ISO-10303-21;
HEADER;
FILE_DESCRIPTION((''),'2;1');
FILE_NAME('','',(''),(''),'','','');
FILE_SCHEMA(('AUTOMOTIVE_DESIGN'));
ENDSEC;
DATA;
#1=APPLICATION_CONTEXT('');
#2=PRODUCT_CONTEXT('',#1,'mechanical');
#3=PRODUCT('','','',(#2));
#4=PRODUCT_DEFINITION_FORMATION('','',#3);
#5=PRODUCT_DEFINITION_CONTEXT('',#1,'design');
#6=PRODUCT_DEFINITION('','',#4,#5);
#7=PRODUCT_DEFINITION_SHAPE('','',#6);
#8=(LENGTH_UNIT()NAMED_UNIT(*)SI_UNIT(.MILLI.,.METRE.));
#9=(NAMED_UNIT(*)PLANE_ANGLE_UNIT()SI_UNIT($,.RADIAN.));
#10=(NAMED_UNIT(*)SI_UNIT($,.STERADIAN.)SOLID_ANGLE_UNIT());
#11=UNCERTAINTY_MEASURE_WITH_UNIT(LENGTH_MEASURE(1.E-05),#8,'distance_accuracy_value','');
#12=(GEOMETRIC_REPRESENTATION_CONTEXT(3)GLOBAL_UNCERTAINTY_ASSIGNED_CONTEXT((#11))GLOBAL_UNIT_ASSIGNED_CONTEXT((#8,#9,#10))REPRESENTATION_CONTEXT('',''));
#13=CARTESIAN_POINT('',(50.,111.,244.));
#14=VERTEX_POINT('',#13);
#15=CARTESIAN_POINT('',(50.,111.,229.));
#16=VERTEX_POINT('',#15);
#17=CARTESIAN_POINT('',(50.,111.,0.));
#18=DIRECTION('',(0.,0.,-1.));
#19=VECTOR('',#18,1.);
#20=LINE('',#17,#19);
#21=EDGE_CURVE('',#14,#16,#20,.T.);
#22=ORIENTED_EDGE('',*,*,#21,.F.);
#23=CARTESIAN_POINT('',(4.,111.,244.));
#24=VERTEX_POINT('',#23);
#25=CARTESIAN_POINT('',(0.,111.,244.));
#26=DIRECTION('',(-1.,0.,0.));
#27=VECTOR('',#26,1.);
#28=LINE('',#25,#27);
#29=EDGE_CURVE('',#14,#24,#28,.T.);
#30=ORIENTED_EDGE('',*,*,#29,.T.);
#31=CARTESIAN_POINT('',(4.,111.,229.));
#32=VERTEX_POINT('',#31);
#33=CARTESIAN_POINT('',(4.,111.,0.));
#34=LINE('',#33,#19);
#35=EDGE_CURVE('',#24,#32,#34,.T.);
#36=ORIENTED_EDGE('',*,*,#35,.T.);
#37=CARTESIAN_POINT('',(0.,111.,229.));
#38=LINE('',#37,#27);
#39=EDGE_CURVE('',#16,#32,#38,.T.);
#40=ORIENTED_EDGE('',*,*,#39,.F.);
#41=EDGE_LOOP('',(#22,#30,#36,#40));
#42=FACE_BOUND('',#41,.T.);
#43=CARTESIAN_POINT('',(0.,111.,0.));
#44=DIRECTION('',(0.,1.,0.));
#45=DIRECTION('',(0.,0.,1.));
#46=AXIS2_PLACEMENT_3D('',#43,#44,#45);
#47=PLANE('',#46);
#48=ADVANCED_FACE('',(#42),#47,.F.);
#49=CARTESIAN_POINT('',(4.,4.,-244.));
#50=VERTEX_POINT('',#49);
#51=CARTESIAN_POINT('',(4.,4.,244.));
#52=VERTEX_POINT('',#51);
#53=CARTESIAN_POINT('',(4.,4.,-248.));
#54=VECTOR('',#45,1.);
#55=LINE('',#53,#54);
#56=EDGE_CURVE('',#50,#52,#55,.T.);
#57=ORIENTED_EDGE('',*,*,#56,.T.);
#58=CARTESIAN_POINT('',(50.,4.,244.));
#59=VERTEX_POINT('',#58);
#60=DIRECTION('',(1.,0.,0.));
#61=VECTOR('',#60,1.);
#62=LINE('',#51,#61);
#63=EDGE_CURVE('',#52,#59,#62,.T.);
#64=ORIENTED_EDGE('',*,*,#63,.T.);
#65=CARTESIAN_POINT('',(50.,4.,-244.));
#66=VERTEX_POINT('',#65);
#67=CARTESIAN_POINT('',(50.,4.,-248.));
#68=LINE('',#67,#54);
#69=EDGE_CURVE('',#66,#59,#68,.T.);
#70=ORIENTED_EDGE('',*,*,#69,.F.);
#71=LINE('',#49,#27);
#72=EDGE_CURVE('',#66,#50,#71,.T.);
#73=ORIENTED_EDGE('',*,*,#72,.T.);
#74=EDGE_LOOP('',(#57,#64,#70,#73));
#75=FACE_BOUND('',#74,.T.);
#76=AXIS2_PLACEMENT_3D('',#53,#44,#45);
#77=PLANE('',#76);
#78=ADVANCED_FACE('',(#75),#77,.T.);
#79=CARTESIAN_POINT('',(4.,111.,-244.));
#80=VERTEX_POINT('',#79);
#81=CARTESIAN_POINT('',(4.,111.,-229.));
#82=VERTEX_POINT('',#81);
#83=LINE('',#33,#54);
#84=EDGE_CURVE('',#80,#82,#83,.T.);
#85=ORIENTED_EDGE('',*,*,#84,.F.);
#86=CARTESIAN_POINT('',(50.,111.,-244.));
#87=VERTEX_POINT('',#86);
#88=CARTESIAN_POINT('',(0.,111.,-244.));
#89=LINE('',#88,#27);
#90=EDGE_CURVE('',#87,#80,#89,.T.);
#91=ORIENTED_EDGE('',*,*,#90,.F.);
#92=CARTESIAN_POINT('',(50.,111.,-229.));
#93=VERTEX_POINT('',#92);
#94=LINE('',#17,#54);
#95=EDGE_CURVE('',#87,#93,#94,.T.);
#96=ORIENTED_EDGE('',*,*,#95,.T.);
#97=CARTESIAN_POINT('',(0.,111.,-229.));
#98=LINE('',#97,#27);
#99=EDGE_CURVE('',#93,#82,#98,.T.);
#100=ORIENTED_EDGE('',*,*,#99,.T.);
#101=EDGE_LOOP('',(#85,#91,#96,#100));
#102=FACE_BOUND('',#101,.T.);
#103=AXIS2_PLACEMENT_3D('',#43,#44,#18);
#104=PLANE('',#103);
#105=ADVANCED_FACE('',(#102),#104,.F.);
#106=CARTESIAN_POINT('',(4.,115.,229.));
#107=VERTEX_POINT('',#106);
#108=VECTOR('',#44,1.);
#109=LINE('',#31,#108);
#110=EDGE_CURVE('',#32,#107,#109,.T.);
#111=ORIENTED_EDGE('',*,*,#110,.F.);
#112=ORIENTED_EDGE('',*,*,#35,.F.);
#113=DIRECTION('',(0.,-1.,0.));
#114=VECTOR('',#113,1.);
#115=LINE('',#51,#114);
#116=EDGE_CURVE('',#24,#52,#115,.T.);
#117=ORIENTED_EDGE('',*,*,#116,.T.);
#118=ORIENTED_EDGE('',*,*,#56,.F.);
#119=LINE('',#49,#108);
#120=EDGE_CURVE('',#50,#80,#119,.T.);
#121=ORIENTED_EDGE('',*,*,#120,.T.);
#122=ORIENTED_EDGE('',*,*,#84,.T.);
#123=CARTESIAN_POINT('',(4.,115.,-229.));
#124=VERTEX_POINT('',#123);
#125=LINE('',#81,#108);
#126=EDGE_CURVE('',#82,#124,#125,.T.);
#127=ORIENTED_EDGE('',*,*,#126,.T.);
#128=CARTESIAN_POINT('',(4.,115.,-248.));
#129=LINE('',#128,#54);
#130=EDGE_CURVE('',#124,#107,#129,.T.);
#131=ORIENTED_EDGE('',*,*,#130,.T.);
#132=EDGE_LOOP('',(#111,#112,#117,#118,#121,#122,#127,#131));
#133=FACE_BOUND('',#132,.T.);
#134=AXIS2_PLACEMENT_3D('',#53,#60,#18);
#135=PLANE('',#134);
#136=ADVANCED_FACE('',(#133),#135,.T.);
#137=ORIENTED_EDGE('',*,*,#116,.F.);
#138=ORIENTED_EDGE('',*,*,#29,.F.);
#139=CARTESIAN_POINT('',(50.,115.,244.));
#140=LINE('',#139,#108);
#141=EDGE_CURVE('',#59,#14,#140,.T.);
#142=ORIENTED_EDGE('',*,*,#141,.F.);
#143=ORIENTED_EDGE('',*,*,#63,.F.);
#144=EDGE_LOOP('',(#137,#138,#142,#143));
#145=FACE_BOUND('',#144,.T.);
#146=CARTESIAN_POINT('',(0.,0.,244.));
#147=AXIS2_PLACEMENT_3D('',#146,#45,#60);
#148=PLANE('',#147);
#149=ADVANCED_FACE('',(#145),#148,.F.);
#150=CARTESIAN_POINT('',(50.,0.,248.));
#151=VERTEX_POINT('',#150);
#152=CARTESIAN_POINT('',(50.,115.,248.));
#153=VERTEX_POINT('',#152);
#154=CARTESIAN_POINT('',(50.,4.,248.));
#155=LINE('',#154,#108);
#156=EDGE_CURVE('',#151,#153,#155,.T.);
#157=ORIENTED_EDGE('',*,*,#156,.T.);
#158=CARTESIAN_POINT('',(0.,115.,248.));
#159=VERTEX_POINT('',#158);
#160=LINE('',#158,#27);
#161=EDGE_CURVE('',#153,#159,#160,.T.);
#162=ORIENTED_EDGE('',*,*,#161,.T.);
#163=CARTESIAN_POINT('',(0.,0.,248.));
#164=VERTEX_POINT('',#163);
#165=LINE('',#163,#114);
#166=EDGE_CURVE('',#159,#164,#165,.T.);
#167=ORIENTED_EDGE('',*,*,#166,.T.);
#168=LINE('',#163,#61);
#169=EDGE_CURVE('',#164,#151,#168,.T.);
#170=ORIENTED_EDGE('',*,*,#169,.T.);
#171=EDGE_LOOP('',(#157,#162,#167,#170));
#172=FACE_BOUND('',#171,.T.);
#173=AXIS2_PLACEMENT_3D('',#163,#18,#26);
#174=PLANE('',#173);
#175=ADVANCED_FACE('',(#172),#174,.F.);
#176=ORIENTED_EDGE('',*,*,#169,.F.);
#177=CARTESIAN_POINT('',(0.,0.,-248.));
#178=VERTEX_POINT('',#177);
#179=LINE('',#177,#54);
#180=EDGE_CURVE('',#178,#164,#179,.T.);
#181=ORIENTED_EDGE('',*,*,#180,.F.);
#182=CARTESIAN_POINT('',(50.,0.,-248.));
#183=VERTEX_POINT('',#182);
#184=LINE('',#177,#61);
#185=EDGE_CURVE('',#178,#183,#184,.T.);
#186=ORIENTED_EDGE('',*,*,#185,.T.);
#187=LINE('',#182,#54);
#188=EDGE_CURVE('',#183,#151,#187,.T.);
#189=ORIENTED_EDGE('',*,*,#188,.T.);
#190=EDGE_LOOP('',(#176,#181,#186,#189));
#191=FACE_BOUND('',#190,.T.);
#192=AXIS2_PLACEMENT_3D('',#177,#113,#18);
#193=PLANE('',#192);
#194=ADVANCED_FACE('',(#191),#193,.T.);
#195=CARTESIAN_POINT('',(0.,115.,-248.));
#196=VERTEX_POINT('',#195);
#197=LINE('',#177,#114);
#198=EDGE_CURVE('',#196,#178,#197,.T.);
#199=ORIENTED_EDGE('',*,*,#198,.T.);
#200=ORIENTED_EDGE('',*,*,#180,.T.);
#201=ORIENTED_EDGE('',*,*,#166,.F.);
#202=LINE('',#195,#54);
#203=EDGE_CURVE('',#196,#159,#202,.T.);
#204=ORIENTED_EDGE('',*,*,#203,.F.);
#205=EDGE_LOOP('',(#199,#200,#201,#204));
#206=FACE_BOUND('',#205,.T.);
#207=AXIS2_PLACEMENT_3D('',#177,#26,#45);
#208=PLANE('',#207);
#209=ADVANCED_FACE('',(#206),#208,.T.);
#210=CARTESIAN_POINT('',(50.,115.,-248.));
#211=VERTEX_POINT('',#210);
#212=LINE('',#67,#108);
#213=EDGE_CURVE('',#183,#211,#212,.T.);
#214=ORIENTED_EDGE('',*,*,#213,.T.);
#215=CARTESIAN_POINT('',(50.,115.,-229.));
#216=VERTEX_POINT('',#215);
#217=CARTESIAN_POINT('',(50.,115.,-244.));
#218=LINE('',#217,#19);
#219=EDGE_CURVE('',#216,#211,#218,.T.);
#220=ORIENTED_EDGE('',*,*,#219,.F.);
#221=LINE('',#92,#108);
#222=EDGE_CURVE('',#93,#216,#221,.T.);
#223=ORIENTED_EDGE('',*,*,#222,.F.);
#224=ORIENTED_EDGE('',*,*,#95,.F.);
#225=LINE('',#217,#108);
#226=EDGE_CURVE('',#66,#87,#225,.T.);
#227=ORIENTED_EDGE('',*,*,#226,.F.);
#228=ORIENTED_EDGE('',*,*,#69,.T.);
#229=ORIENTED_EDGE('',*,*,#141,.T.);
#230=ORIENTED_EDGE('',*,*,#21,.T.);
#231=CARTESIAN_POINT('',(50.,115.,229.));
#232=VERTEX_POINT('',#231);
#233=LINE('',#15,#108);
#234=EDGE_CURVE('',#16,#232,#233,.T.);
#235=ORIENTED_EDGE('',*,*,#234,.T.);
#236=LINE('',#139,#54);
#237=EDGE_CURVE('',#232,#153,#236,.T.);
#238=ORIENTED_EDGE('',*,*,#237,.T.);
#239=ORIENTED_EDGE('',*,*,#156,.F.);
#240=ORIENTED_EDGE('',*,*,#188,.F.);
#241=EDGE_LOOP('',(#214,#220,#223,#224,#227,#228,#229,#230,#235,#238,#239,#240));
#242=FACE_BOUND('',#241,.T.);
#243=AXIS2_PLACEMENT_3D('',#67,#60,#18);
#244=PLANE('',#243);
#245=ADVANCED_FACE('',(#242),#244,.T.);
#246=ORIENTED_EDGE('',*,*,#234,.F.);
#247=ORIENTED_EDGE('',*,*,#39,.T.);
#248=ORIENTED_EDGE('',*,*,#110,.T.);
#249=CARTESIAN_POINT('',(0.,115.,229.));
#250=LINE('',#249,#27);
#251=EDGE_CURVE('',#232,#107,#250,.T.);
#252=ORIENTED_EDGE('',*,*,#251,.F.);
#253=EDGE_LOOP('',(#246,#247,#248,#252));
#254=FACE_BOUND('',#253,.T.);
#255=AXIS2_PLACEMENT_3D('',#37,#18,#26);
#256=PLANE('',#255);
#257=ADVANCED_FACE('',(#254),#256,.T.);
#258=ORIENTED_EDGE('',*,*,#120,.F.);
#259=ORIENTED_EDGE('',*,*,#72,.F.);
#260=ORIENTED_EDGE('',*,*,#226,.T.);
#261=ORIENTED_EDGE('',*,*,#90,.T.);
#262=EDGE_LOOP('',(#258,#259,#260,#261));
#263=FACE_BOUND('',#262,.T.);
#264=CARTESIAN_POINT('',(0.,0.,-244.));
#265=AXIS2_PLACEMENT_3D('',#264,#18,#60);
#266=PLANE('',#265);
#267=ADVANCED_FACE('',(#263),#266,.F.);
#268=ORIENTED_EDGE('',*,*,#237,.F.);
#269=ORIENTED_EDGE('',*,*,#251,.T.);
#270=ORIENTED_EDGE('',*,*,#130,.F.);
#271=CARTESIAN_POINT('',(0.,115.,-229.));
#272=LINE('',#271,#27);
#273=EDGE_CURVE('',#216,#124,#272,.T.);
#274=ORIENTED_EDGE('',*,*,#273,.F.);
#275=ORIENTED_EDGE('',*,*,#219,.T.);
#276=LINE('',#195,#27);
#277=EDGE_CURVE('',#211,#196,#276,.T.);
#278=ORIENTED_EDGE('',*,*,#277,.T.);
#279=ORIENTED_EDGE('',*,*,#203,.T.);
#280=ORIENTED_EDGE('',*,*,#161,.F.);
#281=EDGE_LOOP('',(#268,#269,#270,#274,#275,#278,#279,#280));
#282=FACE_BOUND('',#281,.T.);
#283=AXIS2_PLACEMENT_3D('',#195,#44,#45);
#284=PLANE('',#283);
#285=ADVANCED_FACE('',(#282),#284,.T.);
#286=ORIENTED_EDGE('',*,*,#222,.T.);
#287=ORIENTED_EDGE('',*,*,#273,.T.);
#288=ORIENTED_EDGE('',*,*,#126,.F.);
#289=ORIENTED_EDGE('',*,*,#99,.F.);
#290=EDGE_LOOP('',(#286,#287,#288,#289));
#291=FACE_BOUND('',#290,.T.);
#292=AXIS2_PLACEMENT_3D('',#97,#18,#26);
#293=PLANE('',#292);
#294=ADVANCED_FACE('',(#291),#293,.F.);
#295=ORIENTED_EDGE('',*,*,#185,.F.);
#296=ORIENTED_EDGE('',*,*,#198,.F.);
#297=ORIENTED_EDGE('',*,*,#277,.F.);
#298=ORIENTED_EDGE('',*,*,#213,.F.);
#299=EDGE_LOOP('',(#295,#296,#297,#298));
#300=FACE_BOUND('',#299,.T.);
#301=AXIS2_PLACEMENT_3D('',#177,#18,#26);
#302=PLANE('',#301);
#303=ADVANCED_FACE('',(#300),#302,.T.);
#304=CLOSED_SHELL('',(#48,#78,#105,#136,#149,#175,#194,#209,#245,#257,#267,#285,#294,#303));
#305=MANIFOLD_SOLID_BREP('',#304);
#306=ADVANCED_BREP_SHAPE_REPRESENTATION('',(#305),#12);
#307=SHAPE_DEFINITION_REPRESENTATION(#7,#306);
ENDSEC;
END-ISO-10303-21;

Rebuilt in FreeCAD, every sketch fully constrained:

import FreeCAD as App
import Part
import Sketcher
Q = App.Units.Quantity

doc = App.newDocument("Part")
params = doc.addObject("Spreadsheet::Sheet", "Params")
for row, (alias, value) in enumerate([
    ("sketch1_width", "50 mm"),
    ("sketch1_width2", "46 mm"),
    ("sketch1_height", "115 mm"),
    ("pad1_length", "248 mm"),
    ("pad1_length2", "248 mm"),
    ("sketch2_width", "50 mm"),
    ("sketch2_height", "115 mm"),
    ("pad2_length", "4 mm"),
    ("sketch3_width", "46 mm"),
    ("sketch3_height", "15 mm"),
    ("pad3_length", "4 mm"),
], start=1):
    params.set(f"A{row}", alias)
    params.set(f"B{row}", "=" + value)
    params.setAlias(f"B{row}", alias)

body = doc.addObject("PartDesign::Body", "Body")

sketch1 = doc.addObject("Sketcher::SketchObject", "Sketch")
body.addObject(sketch1)
sketch1.AttachmentSupport = (doc.XY_Plane, [""])
sketch1.MapMode = "FlatFace"
sketch1.addGeometry([
    Part.LineSegment(App.Vector(0, 115, 0), App.Vector(0, 0, 0)),
    Part.LineSegment(App.Vector(0, 0, 0), App.Vector(50, 0, 0)),
    Part.LineSegment(App.Vector(50, 0, 0), App.Vector(50, 4, 0)),
    Part.LineSegment(App.Vector(50, 4, 0), App.Vector(4, 4, 0)),
    Part.LineSegment(App.Vector(4, 4, 0), App.Vector(4, 115, 0)),
    Part.LineSegment(App.Vector(4, 115, 0), App.Vector(0, 115, 0)),
], False)
sketch1.addConstraint([
    Sketcher.Constraint("Coincident", 0, 2, 1, 1),
    Sketcher.Constraint("Coincident", 1, 2, 2, 1),
    Sketcher.Constraint("Coincident", 2, 2, 3, 1),
    Sketcher.Constraint("Coincident", 3, 2, 4, 1),
    Sketcher.Constraint("Coincident", 4, 2, 5, 1),
    Sketcher.Constraint("Coincident", 5, 2, 0, 1),
    Sketcher.Constraint("Vertical", 0),
    Sketcher.Constraint("Horizontal", 1),
    Sketcher.Constraint("Vertical", 2),
    Sketcher.Constraint("Horizontal", 3),
    Sketcher.Constraint("Vertical", 4),
    Sketcher.Constraint("Horizontal", 5),
    Sketcher.Constraint("Coincident", 0, 2, -1, 1),
    Sketcher.Constraint("Equal", 5, 2),
    Sketcher.Constraint("DistanceX", 1, 1, 1, 2, Q("50 mm")),
    Sketcher.Constraint("DistanceX", 3, 2, 3, 1, Q("46 mm")),
    Sketcher.Constraint("DistanceY", 0, 2, 0, 1, Q("115 mm")),
])
sketch1.setExpression("Constraints[14]", "Params.sketch1_width")
sketch1.setExpression("Constraints[15]", "Params.sketch1_width2")
sketch1.setExpression("Constraints[16]", "Params.sketch1_height")
pad1 = doc.addObject("PartDesign::Pad", "Pad")
body.addObject(pad1)
pad1.Profile = sketch1
pad1.Type = "TwoLengths"
pad1.setExpression("Length", "Params.pad1_length")
pad1.setExpression("Length2", "Params.pad1_length2")

sketch2 = doc.addObject("Sketcher::SketchObject", "Sketch001")
body.addObject(sketch2)
sketch2.AttachmentSupport = (doc.XY_Plane, [""])
sketch2.MapMode = "FlatFace"
sketch2.AttachmentOffset = App.Placement(App.Vector(0, 0, 248), App.Rotation())
sketch2.addGeometry([
    Part.LineSegment(App.Vector(0, 115, 0), App.Vector(0, 0, 0)),
    Part.LineSegment(App.Vector(0, 0, 0), App.Vector(50, 0, 0)),
    Part.LineSegment(App.Vector(50, 0, 0), App.Vector(50, 115, 0)),
    Part.LineSegment(App.Vector(50, 115, 0), App.Vector(0, 115, 0)),
], False)
sketch2.addConstraint([
    Sketcher.Constraint("Coincident", 0, 2, 1, 1),
    Sketcher.Constraint("Coincident", 1, 2, 2, 1),
    Sketcher.Constraint("Coincident", 2, 2, 3, 1),
    Sketcher.Constraint("Coincident", 3, 2, 0, 1),
    Sketcher.Constraint("Vertical", 0),
    Sketcher.Constraint("Horizontal", 1),
    Sketcher.Constraint("Vertical", 2),
    Sketcher.Constraint("Horizontal", 3),
    Sketcher.Constraint("Coincident", 0, 2, -1, 1),
    Sketcher.Constraint("DistanceX", 1, 1, 1, 2, Q("50 mm")),
    Sketcher.Constraint("DistanceY", 0, 2, 0, 1, Q("115 mm")),
])
sketch2.setExpression("Constraints[9]", "Params.sketch2_width")
sketch2.setExpression("Constraints[10]", "Params.sketch2_height")
pad2 = doc.addObject("PartDesign::Pad", "Pad001")
body.addObject(pad2)
pad2.Profile = sketch2
pad2.setExpression("Length", "Params.pad2_length")
pad2.Reversed = True
doc.recompute()

mirrored = doc.addObject("PartDesign::Mirrored", "Mirrored")
body.addObject(mirrored)
mirrored.Originals = [pad2]
mirrored.MirrorPlane = (doc.XY_Plane, [""])
body.Tip = mirrored

sketch3 = doc.addObject("Sketcher::SketchObject", "Sketch002")
body.addObject(sketch3)
sketch3.AttachmentSupport = (doc.XZ_Plane, [""])
sketch3.MapMode = "FlatFace"
sketch3.AttachmentOffset = App.Placement(App.Vector(0, 0, -115), App.Rotation())
sketch3.addGeometry([
    Part.LineSegment(App.Vector(4, 229, 0), App.Vector(4, 244, 0)),
    Part.LineSegment(App.Vector(4, 244, 0), App.Vector(50, 244, 0)),
    Part.LineSegment(App.Vector(50, 244, 0), App.Vector(50, 229, 0)),
    Part.LineSegment(App.Vector(50, 229, 0), App.Vector(4, 229, 0)),
], False)
sketch3.addConstraint([
    Sketcher.Constraint("Coincident", 0, 2, 1, 1),
    Sketcher.Constraint("Coincident", 1, 2, 2, 1),
    Sketcher.Constraint("Coincident", 2, 2, 3, 1),
    Sketcher.Constraint("Coincident", 3, 2, 0, 1),
    Sketcher.Constraint("Vertical", 0),
    Sketcher.Constraint("Horizontal", 1),
    Sketcher.Constraint("Vertical", 2),
    Sketcher.Constraint("Horizontal", 3),
    Sketcher.Constraint("DistanceX", 1, 1, 1, 2, Q("46 mm")),
    Sketcher.Constraint("DistanceY", 0, 1, 0, 2, Q("15 mm")),
    Sketcher.Constraint("DistanceX", -1, 1, 0, 2, Q("4 mm")),
    Sketcher.Constraint("DistanceY", -1, 1, 0, 2, Q("244 mm")),
])
sketch3.setExpression("Constraints[8]", "Params.sketch3_width")
sketch3.setExpression("Constraints[9]", "Params.sketch3_height")
pad3 = doc.addObject("PartDesign::Pad", "Pad002")
body.addObject(pad3)
pad3.Profile = sketch3
pad3.setExpression("Length", "Params.pad3_length")
doc.recompute()

mirrored2 = doc.addObject("PartDesign::Mirrored", "Mirrored001")
body.addObject(mirrored2)
mirrored2.Originals = [pad3]
mirrored2.MirrorPlane = (doc.XY_Plane, [""])
body.Tip = mirrored2

doc.recompute()
